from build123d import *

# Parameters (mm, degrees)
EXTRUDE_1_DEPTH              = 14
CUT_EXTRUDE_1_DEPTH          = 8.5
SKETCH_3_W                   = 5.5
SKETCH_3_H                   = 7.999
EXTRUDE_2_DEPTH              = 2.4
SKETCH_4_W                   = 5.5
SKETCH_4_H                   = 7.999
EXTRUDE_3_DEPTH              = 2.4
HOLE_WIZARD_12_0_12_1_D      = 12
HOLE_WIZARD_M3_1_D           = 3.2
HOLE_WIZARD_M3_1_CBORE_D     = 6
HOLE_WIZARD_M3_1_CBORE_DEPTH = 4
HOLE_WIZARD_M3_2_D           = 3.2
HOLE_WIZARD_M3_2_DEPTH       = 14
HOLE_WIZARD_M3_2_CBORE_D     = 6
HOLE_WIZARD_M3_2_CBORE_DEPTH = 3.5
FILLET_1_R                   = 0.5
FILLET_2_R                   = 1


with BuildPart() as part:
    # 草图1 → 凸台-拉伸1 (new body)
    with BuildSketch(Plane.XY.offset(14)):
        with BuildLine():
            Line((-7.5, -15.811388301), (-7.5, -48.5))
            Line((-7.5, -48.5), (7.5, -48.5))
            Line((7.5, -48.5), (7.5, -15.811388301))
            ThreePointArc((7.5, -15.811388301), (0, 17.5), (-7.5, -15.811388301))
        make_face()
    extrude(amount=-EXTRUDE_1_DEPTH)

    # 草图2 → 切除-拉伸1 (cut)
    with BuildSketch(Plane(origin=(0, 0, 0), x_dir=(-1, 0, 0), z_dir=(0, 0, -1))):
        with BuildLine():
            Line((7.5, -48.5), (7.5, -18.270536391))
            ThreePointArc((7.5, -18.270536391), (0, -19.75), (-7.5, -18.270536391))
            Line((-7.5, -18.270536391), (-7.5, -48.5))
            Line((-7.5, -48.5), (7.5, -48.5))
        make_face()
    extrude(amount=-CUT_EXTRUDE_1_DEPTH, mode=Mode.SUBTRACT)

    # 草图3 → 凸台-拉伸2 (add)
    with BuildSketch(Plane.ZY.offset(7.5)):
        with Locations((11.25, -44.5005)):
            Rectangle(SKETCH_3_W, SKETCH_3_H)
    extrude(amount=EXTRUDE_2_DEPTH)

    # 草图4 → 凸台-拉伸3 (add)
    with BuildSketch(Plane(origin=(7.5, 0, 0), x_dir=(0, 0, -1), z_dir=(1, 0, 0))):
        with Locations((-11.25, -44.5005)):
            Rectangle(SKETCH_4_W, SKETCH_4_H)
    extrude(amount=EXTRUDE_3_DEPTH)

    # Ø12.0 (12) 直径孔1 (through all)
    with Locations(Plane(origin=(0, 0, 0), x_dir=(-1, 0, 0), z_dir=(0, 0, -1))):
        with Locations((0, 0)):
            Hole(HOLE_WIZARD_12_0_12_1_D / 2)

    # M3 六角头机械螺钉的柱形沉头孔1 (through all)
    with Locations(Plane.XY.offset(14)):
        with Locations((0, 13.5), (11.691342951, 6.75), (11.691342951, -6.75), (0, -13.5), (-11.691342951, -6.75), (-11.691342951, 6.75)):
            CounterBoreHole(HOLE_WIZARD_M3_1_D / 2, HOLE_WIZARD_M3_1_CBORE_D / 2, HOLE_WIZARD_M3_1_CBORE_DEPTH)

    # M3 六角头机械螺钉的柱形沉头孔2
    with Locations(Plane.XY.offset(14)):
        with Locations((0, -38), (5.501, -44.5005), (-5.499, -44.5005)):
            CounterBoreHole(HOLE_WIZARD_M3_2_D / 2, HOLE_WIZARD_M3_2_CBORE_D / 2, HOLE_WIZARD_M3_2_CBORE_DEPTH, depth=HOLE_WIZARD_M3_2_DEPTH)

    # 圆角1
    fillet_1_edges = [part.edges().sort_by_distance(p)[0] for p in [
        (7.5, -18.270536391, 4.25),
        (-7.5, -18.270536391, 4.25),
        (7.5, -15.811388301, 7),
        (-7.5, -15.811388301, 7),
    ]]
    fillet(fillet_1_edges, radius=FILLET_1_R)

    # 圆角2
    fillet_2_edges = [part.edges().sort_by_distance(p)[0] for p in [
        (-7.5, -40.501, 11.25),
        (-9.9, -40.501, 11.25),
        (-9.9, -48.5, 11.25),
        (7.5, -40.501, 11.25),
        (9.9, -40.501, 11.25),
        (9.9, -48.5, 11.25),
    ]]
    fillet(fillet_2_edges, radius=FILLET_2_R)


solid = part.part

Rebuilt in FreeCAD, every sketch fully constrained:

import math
import FreeCAD as App
import Part
import Sketcher
from FreeCAD import Vector


def edges_at(feature, points):
    """Names of the edges that pass closest to the given points."""
    edges = feature.Shape.Edges
    near = lambda p: min(range(len(edges)), key=lambda i: edges[i].distToShape(Part.Vertex(*p))[0])
    return sorted({f"Edge{near(p) + 1}" for p in points})


def add_polygon(sketch, points):
    """Adds a closed chain of lines whose ends are joined by coincident constraints."""
    first, n = sketch.GeometryCount, len(points)
    for a, b in zip(points, points[1:] + points[:1]):
        sketch.addGeometry(Part.LineSegment(App.Vector(*a, 0), App.Vector(*b, 0)), False)
    for i in range(n):
        sketch.addConstraint(Sketcher.Constraint("Coincident", first + i, 2, first + (i + 1) % n, 1))

doc = App.newDocument("Part")
body = doc.addObject("PartDesign::Body", "Body")

# Sketch on XY plane
sketch1 = body.newObject("Sketcher::SketchObject", "Sketch")
sketch1.AttachmentSupport = (doc.getObject("XY_Plane"), [""])
sketch1.MapMode = "FlatFace"
sketch1.AttachmentOffset = App.Placement(Vector(0, 0, 14), App.Rotation())
sketch1.addGeometry(Part.LineSegment(Vector(-7.5, -15.811388, 0), Vector(-7.5, -48.5, 0)), False)
sketch1.addGeometry(Part.LineSegment(Vector(-7.5, -48.5, 0), Vector(7.5, -48.5, 0)), False)
sketch1.addGeometry(Part.LineSegment(Vector(7.5, -48.5, 0), Vector(7.5, -15.811388, 0)), False)
sketch1.addGeometry(Part.ArcOfCircle(Part.Circle(Vector(0, 0, 0), Vector(0, 0, 1), 17.5), math.radians(-64.623066), math.radians(244.623066)), False)
sketch1.addConstraint(Sketcher.Constraint("Coincident", 0, 2, 1, 1))
sketch1.addConstraint(Sketcher.Constraint("Coincident", 1, 2, 2, 1))
sketch1.addConstraint(Sketcher.Constraint("Coincident", 2, 2, 3, 1))
sketch1.addConstraint(Sketcher.Constraint("Coincident", 3, 2, 0, 1))
sketch1.addConstraint(Sketcher.Constraint("Vertical", 0))
sketch1.addConstraint(Sketcher.Constraint("Horizontal", 1))
sketch1.addConstraint(Sketcher.Constraint("Vertical", 2))
sketch1.addConstraint(Sketcher.Constraint("Coincident", 3, 3, -1, 1))
sketch1.addConstraint(Sketcher.Constraint("Horizontal", 2, 2, 3, 2))
sketch1.addConstraint(Sketcher.Constraint("Radius", 3, 17.5))
sketch1.addConstraint(Sketcher.Constraint("DistanceX", 1, 1, 1, 2, 15.0))
sketch1.addConstraint(Sketcher.Constraint("DistanceY", 0, 2, -1, 1, 48.5))
pad1 = body.newObject("PartDesign::Pad", "Pad")
pad1.Profile = sketch1
pad1.Length = 14
pad1.Reversed = True

# Sketch on XY plane
sketch2 = body.newObject("Sketcher::SketchObject", "Sketch001")
sketch2.AttachmentSupport = (doc.getObject("XY_Plane"), [""])
sketch2.MapMode = "FlatFace"
sketch2.addGeometry(Part.LineSegment(Vector(-7.5, -48.5, 0), Vector(-7.5, -18.270536, 0)), False)
sketch2.addGeometry(Part.ArcOfCircle(Part.Circle(Vector(0, 0, 0), Vector(0, 0, 1), 19.75), math.radians(-112.318002), math.radians(-67.681998)), False)
sketch2.addGeometry(Part.LineSegment(Vector(7.5, -18.270536, 0), Vector(7.5, -48.5, 0)), False)
sketch2.addGeometry(Part.LineSegment(Vector(7.5, -48.5, 0), Vector(-7.5, -48.5, 0)), False)
sketch2.addConstraint(Sketcher.Constraint("Coincident", 0, 2, 1, 1))
sketch2.addConstraint(Sketcher.Constraint("Coincident", 1, 2, 2, 1))
sketch2.addConstraint(Sketcher.Constraint("Coincident", 2, 2, 3, 1))
sketch2.addConstraint(Sketcher.Constraint("Coincident", 3, 2, 0, 1))
sketch2.addConstraint(Sketcher.Constraint("Vertical", 0))
sketch2.addConstraint(Sketcher.Constraint("Vertical", 2))
sketch2.addConstraint(Sketcher.Constraint("Horizontal", 3))
sketch2.addConstraint(Sketcher.Constraint("Coincident", 1, 3, -1, 1))
sketch2.addConstraint(Sketcher.Constraint("Horizontal", 0, 2, 1, 2))
sketch2.addConstraint(Sketcher.Constraint("DistanceX", 3, 2, 3, 1, 15.0))
sketch2.addConstraint(Sketcher.Constraint("Radius", 1, 19.75))
sketch2.addConstraint(Sketcher.Constraint("DistanceY", 2, 2, -1, 1, 48.5))
pocket1 = body.newObject("PartDesign::Pocket", "Pocket")
pocket1.Profile = sketch2
pocket1.Length = 8.5
pocket1.Reversed = True

# Sketch on YZ plane
sketch3 = body.newObject("Sketcher::SketchObject", "Sketch002")
sketch3.AttachmentSupport = (doc.getObject("YZ_Plane"), [""])
sketch3.MapMode = "FlatFace"
sketch3.AttachmentOffset = App.Placement(Vector(0, 0, -7.5), App.Rotation())
add_polygon(sketch3, [(-40.501, 8.5), (-48.5, 8.5), (-48.5, 14), (-40.501, 14)])  # lines 0-3
sketch3.addConstraint(Sketcher.Constraint("Horizontal", 0))
sketch3.addConstraint(Sketcher.Constraint("Vertical", 1))
sketch3.addConstraint(Sketcher.Constraint("Horizontal", 2))
sketch3.addConstraint(Sketcher.Constraint("Vertical", 3))
sketch3.addConstraint(Sketcher.Constraint("DistanceY", 1, 1, 1, 2, 5.5))
sketch3.addConstraint(Sketcher.Constraint("DistanceY", -1, 1, 1, 2, 14.0))
sketch3.addConstraint(Sketcher.Constraint("DistanceX", 0, 2, -1, 1, 48.5))
sketch3.addConstraint(Sketcher.Constraint("DistanceX", 0, 2, 0, 1, 7.999))
pad2 = body.newObject("PartDesign::Pad", "Pad001")
pad2.Profile = sketch3
pad2.Length = 2.4
pad2.Reversed = True

# Sketch on YZ plane
sketch4 = body.newObject("Sketcher::SketchObject", "Sketch003")
sketch4.AttachmentSupport = (doc.getObject("YZ_Plane"), [""])
sketch4.MapMode = "FlatFace"
sketch4.AttachmentOffset = App.Placement(Vector(0, 0, 7.5), App.Rotation())
add_polygon(sketch4, [(-40.501, 14), (-48.5, 14), (-48.5, 8.5), (-40.501, 8.5)])  # lines 0-3
sketch4.addConstraint(Sketcher.Constraint("Horizontal", 0))
sketch4.addConstraint(Sketcher.Constraint("Vertical", 1))
sketch4.addConstraint(Sketcher.Constraint("Horizontal", 2))
sketch4.addConstraint(Sketcher.Constraint("Vertical", 3))
sketch4.addConstraint(Sketcher.Constraint("DistanceY", 1, 2, 1, 1, 5.5))
sketch4.addConstraint(Sketcher.Constraint("DistanceY", -1, 1, 0, 2, 14.0))
sketch4.addConstraint(Sketcher.Constraint("DistanceX", 0, 2, -1, 1, 48.5))
sketch4.addConstraint(Sketcher.Constraint("DistanceX", 0, 2, 0, 1, 7.999))
pad3 = body.newObject("PartDesign::Pad", "Pad002")
pad3.Profile = sketch4
pad3.Length = 2.4

# Sketch on XY plane
sketch5 = body.newObject("Sketcher::SketchObject", "Sketch004")
sketch5.AttachmentSupport = (doc.getObject("XY_Plane"), [""])
sketch5.MapMode = "FlatFace"
sketch5.addGeometry(Part.Circle(Vector(0, 0, 0), Vector(0, 0, 1), 6), False)
sketch5.addConstraint(Sketcher.Constraint("Coincident", 0, 3, -1, 1))
sketch5.addConstraint(Sketcher.Constraint("Diameter", 0, 12.0))
doc.recompute()
hole = body.newObject("PartDesign::Hole", "Hole")
hole.Profile = sketch5
hole.ThreadType = "None"
hole.Diameter = 12
hole.DepthType = "ThroughAll"
hole.Reversed = True

# Sketch on XY plane
sketch6 = body.newObject("Sketcher::SketchObject", "Sketch005")
sketch6.AttachmentSupport = (doc.getObject("XY_Plane"), [""])
sketch6.MapMode = "FlatFace"
sketch6.AttachmentOffset = App.Placement(Vector(0, 0, 14), App.Rotation())
sketch6.addGeometry(Part.Circle(Vector(0, 13.5, 0), Vector(0, 0, 1), 1.6), False)
sketch6.addGeometry(Part.Circle(Vector(11.691343, 6.75, 0), Vector(0, 0, 1), 1.6), False)
sketch6.addGeometry(Part.Circle(Vector(11.691343, -6.75, 0), Vector(0, 0, 1), 1.6), False)
sketch6.addGeometry(Part.Circle(Vector(0, -13.5, 0), Vector(0, 0, 1), 1.6), False)
sketch6.addGeometry(Part.Circle(Vector(-11.691343, -6.75, 0), Vector(0, 0, 1), 1.6), False)
sketch6.addGeometry(Part.Circle(Vector(-11.691343, 6.75, 0), Vector(0, 0, 1), 1.6), False)
sketch6.addConstraint(Sketcher.Constraint("Equal", 0, 1))
sketch6.addConstraint(Sketcher.Constraint("Equal", 1, 2))
sketch6.addConstraint(Sketcher.Constraint("Equal", 2, 3))
sketch6.addConstraint(Sketcher.Constraint("Equal", 3, 4))
sketch6.addConstraint(Sketcher.Constraint("Equal", 4, 5))
sketch6.addConstraint(Sketcher.Constraint("Symmetric", 0, 3, 3, 3, -1, 1))
sketch6.addConstraint(Sketcher.Constraint("Symmetric", 1, 3, 4, 3, -1, 1))
sketch6.addConstraint(Sketcher.Constraint("Symmetric", 2, 3, 5, 3, -1, 1))
sketch6.addConstraint(Sketcher.Constraint("Symmetric", 2, 3, 4, 3, -2))
sketch6.addConstraint(Sketcher.Constraint("PointOnObject", 0, 3, -2))
sketch6.addConstraint(Sketcher.Constraint("Diameter", 0, 3.2))
sketch6.addConstraint(Sketcher.Constraint("DistanceY", 3, 3, 0, 3, 27.0))
sketch6.addConstraint(Sketcher.Constraint("DistanceY", 2, 3, 1, 3, 13.5))
sketch6.addConstraint(Sketcher.Constraint("DistanceX", -1, 1, 1, 3, 11.691343))
doc.recompute()
hole2 = body.newObject("PartDesign::Hole", "Hole001")
hole2.Profile = sketch6
hole2.ThreadType = "None"
hole2.Diameter = 3.2
hole2.DepthType = "ThroughAll"
hole2.HoleCutType = "Counterbore"
hole2.HoleCutDiameter = 6
hole2.HoleCutDepth = 4

# Sketch on XY plane
sketch7 = body.newObject("Sketcher::SketchObject", "Sketch006")
sketch7.AttachmentSupport = (doc.getObject("XY_Plane"), [""])
sketch7.MapMode = "FlatFace"
sketch7.AttachmentOffset = App.Placement(Vector(0, 0, 14), App.Rotation())
sketch7.addGeometry(Part.Circle(Vector(0, -38, 0), Vector(0, 0, 1), 1.6), False)
sketch7.addGeometry(Part.Circle(Vector(5.501, -44.5005, 0), Vector(0, 0, 1), 1.6), False)
sketch7.addGeometry(Part.Circle(Vector(-5.499, -44.5005, 0), Vector(0, 0, 1), 1.6), False)
sketch7.addConstraint(Sketcher.Constraint("Equal", 0, 1))
sketch7.addConstraint(Sketcher.Constraint("Equal", 1, 2))
sketch7.addConstraint(Sketcher.Constraint("PointOnObject", 0, 3, -2))
sketch7.addConstraint(Sketcher.Constraint("Horizontal", 1, 3, 2, 3))
sketch7.addConstraint(Sketcher.Constraint("Diameter", 0, 3.2))
sketch7.addConstraint(Sketcher.Constraint("DistanceY", 0, 3, -1, 1, 38.0))
sketch7.addConstraint(Sketcher.Constraint("DistanceX", 2, 3, 1, 3, 11.0))
sketch7.addConstraint(Sketcher.Constraint("DistanceX", -1, 1, 1, 3, 5.501))
sketch7.addConstraint(Sketcher.Constraint("DistanceY", 1, 3, -1, 1, 44.5005))
doc.recompute()
hole3 = body.newObject("PartDesign::Hole", "Hole002")
hole3.Profile = sketch7
hole3.ThreadType = "None"
hole3.Diameter = 3.2
hole3.DepthType = "Dimension"
hole3.Depth = 14
hole3.DrillPoint = "Flat"
hole3.HoleCutType = "Counterbore"
hole3.HoleCutDiameter = 6
hole3.HoleCutDepth = 3.5
doc.recompute()

fillet = body.newObject("PartDesign::Fillet", "Fillet")
fillet.Base = (hole3, edges_at(hole3, [
    (7.5, -18.271, 4.25),
    (-7.5, -18.271, 4.25),
    (7.5, -15.811, 7),
    (-7.5, -15.811, 7),
]))
fillet.Radius = 0.5
doc.recompute()

fillet2 = body.newObject("PartDesign::Fillet", "Fillet001")
fillet2.Base = (fillet, edges_at(fillet, [
    (-7.5, -40.501, 11.25),
    (-9.9, -40.501, 11.25),
    (-9.9, -48.5, 11.25),
    (7.5, -40.501, 11.25),
    (9.9, -40.501, 11.25),
    (9.9, -48.5, 11.25),
]))
fillet2.Radius = 1

doc.recompute()
